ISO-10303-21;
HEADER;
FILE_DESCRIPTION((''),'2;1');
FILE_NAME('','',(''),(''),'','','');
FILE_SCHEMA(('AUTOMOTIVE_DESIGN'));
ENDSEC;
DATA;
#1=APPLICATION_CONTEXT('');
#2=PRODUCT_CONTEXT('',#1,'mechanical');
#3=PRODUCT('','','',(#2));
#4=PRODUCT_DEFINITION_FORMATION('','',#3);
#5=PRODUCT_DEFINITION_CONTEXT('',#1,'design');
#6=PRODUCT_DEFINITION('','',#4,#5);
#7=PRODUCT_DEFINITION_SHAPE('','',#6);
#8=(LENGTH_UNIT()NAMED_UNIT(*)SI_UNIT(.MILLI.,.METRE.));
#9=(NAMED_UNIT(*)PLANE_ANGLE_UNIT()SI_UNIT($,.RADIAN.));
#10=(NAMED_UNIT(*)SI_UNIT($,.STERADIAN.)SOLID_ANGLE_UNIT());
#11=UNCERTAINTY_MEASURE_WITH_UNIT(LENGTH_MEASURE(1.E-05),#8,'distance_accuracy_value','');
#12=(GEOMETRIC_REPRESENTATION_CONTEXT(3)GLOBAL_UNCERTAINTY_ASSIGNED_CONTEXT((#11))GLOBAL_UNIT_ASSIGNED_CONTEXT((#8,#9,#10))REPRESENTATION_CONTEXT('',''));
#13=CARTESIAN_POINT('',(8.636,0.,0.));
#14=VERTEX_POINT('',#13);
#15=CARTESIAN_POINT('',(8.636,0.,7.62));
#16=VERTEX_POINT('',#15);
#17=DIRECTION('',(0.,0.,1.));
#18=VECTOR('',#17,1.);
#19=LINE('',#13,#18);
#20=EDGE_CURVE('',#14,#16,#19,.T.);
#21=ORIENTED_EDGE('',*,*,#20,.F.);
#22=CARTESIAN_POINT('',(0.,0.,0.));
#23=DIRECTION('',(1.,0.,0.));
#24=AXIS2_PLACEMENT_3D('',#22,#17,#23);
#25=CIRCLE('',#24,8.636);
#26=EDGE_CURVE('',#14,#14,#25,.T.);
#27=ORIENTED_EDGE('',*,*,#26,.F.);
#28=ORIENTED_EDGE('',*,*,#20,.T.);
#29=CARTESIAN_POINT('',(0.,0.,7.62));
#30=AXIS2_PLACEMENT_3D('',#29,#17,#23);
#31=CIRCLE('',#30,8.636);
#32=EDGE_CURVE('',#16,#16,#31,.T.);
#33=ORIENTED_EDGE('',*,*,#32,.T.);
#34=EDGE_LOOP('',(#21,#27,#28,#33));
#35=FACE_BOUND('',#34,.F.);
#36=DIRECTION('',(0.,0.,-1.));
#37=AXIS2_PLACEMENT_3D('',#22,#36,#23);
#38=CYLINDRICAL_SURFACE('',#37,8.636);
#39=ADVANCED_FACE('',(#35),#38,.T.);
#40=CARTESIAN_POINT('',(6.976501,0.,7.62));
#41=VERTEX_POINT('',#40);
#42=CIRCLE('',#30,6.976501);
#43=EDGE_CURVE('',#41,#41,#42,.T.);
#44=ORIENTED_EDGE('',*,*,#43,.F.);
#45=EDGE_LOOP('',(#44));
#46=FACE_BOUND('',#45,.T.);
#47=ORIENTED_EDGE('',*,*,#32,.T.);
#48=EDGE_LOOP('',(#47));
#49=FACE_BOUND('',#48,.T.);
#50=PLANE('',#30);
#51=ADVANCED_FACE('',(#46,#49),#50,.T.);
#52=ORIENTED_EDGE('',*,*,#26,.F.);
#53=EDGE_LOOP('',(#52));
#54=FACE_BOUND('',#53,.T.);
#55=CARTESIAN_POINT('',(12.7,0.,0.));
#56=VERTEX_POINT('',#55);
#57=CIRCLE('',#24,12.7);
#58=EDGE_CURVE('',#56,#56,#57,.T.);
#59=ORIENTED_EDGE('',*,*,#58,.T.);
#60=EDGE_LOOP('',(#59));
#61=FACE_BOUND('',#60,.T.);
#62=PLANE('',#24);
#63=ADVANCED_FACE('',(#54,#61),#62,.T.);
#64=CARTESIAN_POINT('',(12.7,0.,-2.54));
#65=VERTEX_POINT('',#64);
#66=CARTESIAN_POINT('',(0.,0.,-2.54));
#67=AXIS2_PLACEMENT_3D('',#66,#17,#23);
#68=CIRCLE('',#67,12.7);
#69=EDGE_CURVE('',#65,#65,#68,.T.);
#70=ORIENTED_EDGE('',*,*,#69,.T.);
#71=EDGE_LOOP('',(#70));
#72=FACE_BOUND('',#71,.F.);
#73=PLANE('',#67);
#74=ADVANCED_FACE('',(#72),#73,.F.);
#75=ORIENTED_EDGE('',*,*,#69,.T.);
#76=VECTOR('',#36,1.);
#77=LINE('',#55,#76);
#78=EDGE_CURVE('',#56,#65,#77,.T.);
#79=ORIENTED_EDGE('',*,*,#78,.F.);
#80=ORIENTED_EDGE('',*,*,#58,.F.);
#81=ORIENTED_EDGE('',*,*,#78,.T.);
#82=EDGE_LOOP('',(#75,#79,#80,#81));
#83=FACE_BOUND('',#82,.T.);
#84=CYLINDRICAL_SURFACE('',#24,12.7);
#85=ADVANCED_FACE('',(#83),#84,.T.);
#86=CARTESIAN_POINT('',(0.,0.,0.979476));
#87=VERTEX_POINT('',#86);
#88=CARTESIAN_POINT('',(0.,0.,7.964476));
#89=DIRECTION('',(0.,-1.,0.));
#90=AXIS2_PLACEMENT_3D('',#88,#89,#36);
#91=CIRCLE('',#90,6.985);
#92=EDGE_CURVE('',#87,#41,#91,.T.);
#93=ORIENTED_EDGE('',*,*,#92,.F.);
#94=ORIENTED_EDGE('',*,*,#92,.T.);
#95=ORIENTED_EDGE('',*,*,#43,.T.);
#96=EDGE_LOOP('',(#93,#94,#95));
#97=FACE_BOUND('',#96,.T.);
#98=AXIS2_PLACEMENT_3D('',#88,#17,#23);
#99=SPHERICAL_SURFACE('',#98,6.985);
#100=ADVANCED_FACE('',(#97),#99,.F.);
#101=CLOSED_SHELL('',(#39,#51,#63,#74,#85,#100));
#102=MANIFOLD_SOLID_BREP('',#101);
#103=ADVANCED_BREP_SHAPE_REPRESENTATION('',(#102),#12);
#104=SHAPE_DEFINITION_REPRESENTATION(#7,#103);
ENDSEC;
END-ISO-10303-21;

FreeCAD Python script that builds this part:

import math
import FreeCAD as App
import Part
import Sketcher
from FreeCAD import Vector
Q = App.Units.Quantity

doc = App.newDocument("Part")
params = doc.addObject("Spreadsheet::Sheet", "Params")
for row, (alias, value) in enumerate([
    ("sketch1_diameter", "1 in"),
    ("pad1_length", "0.1 in"),
    ("sketch2_diameter", "0.68 in"),
    ("pad2_length", "0.3 in"),
    ("sketch3_radius", "0.275 in"),
    ("groove_angle", "360 deg"),
], start=1):
    params.set(f"A{row}", alias)
    params.set(f"B{row}", "=" + value)
    params.setAlias(f"B{row}", alias)

body = doc.addObject("PartDesign::Body", "Body")

sketch1 = body.newObject("Sketcher::SketchObject", "Sketch")
sketch1.AttachmentSupport = (doc.getObject("XY_Plane"), [""])
sketch1.MapMode = "FlatFace"
sketch1.addGeometry(Part.Circle(Vector(0, 0, 0), Vector(0, 0, 1), 13), False)
sketch1.addConstraint([
    Sketcher.Constraint("Coincident", 0, 3, -1, 1),
    Sketcher.Constraint("Diameter", 0, Q("1 in")),
])
sketch1.setExpression("Constraints[1]", "Params.sketch1_diameter")
pad1 = body.newObject("PartDesign::Pad", "Pad")
pad1.Profile = sketch1
pad1.setExpression("Length", "Params.pad1_length")
pad1.Reversed = True

sketch2 = body.newObject("Sketcher::SketchObject", "Sketch001")
sketch2.AttachmentSupport = (doc.getObject("XY_Plane"), [""])
sketch2.MapMode = "FlatFace"
sketch2.addGeometry(Part.Circle(Vector(0, 0, 0), Vector(0, 0, 1), 9), False)
sketch2.addConstraint([
    Sketcher.Constraint("Coincident", 0, 3, -1, 1),
    Sketcher.Constraint("Diameter", 0, Q("0.68 in")),
])
sketch2.setExpression("Constraints[1]", "Params.sketch2_diameter")
pad2 = body.newObject("PartDesign::Pad", "Pad001")
pad2.Profile = sketch2
pad2.setExpression("Length", "Params.pad2_length")

sketch3 = body.newObject("Sketcher::SketchObject", "Sketch002")
sketch3.AttachmentSupport = (doc.getObject("XZ_Plane"), [""])
sketch3.MapMode = "FlatFace"
sketch3.addGeometry([
    Part.LineSegment(Vector(0, 15, 0), Vector(0, 1, 0)),
    Part.ArcOfCircle(Part.Circle(Vector(0, 8, 0), Vector(0, 0, 1), 7), math.radians(-90), math.radians(90)),
], False)
sketch3.addConstraint([
    Sketcher.Constraint("Coincident", 0, 1, 1, 2),
    Sketcher.Constraint("Coincident", 1, 1, 0, 2),
    Sketcher.Constraint("Vertical", 0),
    Sketcher.Constraint("PointOnObject", 1, 3, -2),
    Sketcher.Constraint("PointOnObject", 0, 1, -2),
    Sketcher.Constraint("Radius", 1, Q("0.275 in")),
    Sketcher.Constraint("DistanceY", -1, 1, 1, 3, Q("7.964476 mm")),
])
sketch3.setExpression("Constraints[5]", "Params.sketch3_radius")
groove = body.newObject("PartDesign::Groove", "Groove")
groove.Profile = sketch3
groove.ReferenceAxis = (sketch3, ["V_Axis"])
groove.setExpression("Angle", "Params.groove_angle")

doc.recompute()
